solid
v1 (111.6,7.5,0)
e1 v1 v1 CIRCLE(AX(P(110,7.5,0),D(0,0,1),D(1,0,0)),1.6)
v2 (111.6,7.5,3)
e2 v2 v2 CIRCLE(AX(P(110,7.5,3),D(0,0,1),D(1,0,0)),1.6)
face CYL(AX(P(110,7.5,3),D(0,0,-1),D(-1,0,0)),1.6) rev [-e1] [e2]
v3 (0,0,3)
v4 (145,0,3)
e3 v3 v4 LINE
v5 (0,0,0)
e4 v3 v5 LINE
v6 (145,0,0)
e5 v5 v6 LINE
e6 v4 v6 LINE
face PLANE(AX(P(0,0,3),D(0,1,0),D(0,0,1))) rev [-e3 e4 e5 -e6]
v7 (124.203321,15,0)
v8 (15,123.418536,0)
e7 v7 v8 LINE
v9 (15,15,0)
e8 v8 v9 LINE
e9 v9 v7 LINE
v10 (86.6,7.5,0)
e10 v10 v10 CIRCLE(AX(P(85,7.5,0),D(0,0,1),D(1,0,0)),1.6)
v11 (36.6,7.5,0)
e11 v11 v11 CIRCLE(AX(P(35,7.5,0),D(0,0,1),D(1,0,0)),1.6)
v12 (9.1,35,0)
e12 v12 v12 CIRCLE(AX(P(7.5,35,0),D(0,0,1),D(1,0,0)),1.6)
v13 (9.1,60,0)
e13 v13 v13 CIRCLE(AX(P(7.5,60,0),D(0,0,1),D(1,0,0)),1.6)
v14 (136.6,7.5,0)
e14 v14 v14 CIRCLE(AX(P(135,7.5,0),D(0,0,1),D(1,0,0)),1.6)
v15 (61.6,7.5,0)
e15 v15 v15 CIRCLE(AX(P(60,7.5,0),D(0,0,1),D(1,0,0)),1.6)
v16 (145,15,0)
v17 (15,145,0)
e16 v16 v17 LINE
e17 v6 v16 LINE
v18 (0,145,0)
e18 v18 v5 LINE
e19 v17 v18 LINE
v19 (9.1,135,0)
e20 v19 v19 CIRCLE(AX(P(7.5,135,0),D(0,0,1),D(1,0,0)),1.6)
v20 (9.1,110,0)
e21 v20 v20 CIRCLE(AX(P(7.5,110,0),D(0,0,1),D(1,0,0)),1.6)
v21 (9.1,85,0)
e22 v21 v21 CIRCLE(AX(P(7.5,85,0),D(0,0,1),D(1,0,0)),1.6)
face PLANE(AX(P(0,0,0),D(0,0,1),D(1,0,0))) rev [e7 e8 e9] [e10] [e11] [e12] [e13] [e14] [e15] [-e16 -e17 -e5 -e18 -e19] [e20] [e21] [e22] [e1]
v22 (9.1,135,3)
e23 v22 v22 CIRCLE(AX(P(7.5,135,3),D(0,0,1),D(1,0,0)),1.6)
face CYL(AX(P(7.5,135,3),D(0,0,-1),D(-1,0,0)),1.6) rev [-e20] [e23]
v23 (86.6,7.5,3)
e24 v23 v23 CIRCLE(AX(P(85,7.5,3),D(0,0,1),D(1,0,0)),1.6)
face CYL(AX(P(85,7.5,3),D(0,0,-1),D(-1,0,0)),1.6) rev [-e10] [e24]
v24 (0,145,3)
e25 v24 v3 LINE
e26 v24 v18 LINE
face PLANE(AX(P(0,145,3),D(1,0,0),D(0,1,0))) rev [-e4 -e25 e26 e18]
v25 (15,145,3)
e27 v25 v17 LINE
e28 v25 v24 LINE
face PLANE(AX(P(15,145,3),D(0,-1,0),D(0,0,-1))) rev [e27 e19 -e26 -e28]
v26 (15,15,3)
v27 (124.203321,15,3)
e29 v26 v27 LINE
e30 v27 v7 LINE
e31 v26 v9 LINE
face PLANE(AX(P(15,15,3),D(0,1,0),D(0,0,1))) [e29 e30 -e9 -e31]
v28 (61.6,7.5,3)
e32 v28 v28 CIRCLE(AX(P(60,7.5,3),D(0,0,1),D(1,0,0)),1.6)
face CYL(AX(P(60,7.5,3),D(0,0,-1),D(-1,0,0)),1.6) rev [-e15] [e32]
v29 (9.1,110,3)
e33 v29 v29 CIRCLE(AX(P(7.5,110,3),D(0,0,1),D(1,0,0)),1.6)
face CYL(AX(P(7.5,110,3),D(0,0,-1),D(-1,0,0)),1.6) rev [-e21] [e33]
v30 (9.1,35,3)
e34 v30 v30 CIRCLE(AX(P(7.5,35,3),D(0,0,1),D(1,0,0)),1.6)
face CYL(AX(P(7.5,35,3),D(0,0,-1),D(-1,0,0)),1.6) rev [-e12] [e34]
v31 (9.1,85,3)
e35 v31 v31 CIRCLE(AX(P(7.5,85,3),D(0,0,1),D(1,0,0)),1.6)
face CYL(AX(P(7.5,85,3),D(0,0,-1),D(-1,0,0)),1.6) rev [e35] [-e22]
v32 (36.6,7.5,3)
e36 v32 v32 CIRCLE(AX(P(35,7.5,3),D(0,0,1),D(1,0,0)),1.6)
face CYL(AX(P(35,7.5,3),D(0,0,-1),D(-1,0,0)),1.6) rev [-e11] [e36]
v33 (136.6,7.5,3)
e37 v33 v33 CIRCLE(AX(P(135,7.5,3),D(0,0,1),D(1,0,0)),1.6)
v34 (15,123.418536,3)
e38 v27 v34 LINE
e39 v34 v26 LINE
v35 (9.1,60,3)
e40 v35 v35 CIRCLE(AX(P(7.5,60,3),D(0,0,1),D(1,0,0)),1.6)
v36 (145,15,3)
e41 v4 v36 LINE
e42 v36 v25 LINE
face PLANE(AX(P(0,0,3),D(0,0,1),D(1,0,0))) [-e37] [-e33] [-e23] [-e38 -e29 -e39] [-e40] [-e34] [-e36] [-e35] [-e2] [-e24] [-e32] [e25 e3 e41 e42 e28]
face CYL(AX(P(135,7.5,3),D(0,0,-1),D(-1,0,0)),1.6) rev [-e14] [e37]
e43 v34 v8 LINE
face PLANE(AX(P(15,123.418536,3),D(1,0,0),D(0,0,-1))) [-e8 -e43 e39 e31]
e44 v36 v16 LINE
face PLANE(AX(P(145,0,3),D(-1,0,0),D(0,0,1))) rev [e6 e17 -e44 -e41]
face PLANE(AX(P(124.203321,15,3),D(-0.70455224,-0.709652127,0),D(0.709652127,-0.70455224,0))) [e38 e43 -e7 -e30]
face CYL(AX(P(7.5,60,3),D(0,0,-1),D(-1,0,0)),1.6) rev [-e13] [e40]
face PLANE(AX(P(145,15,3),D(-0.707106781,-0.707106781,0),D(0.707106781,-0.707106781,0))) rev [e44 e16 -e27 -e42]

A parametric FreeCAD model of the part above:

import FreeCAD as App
import Part
import Sketcher
Q = App.Units.Quantity


def add_polygon(sketch, points):
    """Adds a closed chain of lines whose ends are joined by coincident constraints."""
    first, n = sketch.GeometryCount, len(points)
    for a, b in zip(points, points[1:] + points[:1]):
        sketch.addGeometry(Part.LineSegment(App.Vector(*a, 0), App.Vector(*b, 0)), False)
    for i in range(n):
        sketch.addConstraint(Sketcher.Constraint("Coincident", first + i, 2, first + (i + 1) % n, 1))

doc = App.newDocument("Part")
params = doc.addObject("Spreadsheet::Sheet", "Params")
for row, (alias, value) in enumerate([
    ("sketch1_diameter", "3.2 mm"),
    ("sketch1_width", "145 mm"),
    ("sketch1_width2", "15 mm"),
    ("pad1_length", "3 mm"),
], start=1):
    params.set(f"A{row}", alias)
    params.set(f"B{row}", "=" + value)
    params.setAlias(f"B{row}", alias)

body = doc.addObject("PartDesign::Body", "Body")

sketch1 = body.newObject("Sketcher::SketchObject", "Sketch")
sketch1.AttachmentSupport = (doc.getObject("XY_Plane"), [""])
sketch1.MapMode = "FlatFace"
add_polygon(sketch1, [(0, 145), (0, 0), (145, 0), (145, 15), (15, 145)])
sketch1.addGeometry(Part.Circle(App.Vector(35, 7.5, 0), App.Vector(0, 0, 1), 1.6), False)
sketch1.addGeometry(Part.Circle(App.Vector(7.5, 35, 0), App.Vector(0, 0, 1), 1.6), False)
sketch1.addGeometry(Part.Circle(App.Vector(60, 7.5, 0), App.Vector(0, 0, 1), 1.6), False)
sketch1.addGeometry(Part.Circle(App.Vector(7.5, 60, 0), App.Vector(0, 0, 1), 1.6), False)
add_polygon(sketch1, [(15, 15), (15, 123.4), (124.2, 15)])
sketch1.addGeometry(Part.Circle(App.Vector(85, 7.5, 0), App.Vector(0, 0, 1), 1.6), False)
sketch1.addGeometry(Part.Circle(App.Vector(110, 7.5, 0), App.Vector(0, 0, 1), 1.6), False)
sketch1.addGeometry(Part.Circle(App.Vector(135, 7.5, 0), App.Vector(0, 0, 1), 1.6), False)
sketch1.addGeometry(Part.Circle(App.Vector(7.5, 85, 0), App.Vector(0, 0, 1), 1.6), False)
sketch1.addGeometry(Part.Circle(App.Vector(7.5, 110, 0), App.Vector(0, 0, 1), 1.6), False)
sketch1.addGeometry(Part.Circle(App.Vector(7.5, 135, 0), App.Vector(0, 0, 1), 1.6), False)
sketch1.addConstraint([
    Sketcher.Constraint("Vertical", 0),
    Sketcher.Constraint("Horizontal", 1),
    Sketcher.Constraint("Vertical", 2),
    Sketcher.Constraint("Horizontal", 4),
    Sketcher.Constraint("Vertical", 9),
    Sketcher.Constraint("Horizontal", 11),
    Sketcher.Constraint("Coincident", 0, 2, -1, 1),
    Sketcher.Constraint("Equal", 5, 6),
    Sketcher.Constraint("Equal", 6, 7),
    Sketcher.Constraint("Equal", 7, 8),
    Sketcher.Constraint("Equal", 8, 12),
    Sketcher.Constraint("Equal", 12, 13),
    Sketcher.Constraint("Equal", 13, 14),
    Sketcher.Constraint("Equal", 14, 15),
    Sketcher.Constraint("Equal", 15, 16),
    Sketcher.Constraint("Equal", 16, 17),
    Sketcher.Constraint("Horizontal", 5, 3, 7, 3),
    Sketcher.Constraint("Horizontal", 7, 3, 12, 3),
    Sketcher.Constraint("Horizontal", 12, 3, 13, 3),
    Sketcher.Constraint("Horizontal", 13, 3, 14, 3),
    Sketcher.Constraint("Horizontal", 2, 2, 10, 2),
    Sketcher.Constraint("Vertical", 6, 3, 8, 3),
    Sketcher.Constraint("Vertical", 8, 3, 15, 3),
    Sketcher.Constraint("Vertical", 15, 3, 16, 3),
    Sketcher.Constraint("Vertical", 16, 3, 17, 3),
    Sketcher.Constraint("Vertical", 3, 2, 9, 2),
    Sketcher.Constraint("Equal", 1, 0),
    Sketcher.Constraint("Equal", 4, 2),
    Sketcher.Constraint("Diameter", 5, Q("3.2 mm")),
    Sketcher.Constraint("DistanceX", 1, 1, 1, 2, Q("145 mm")),
    Sketcher.Constraint("DistanceX", 4, 2, 4, 1, Q("15 mm")),
    Sketcher.Constraint("DistanceX", -1, 1, 5, 3, Q("35 mm")),
    Sketcher.Constraint("DistanceY", -1, 1, 6, 3, Q("35 mm")),
    Sketcher.Constraint("DistanceX", -1, 1, 7, 3, Q("60 mm")),
    Sketcher.Constraint("DistanceY", -1, 1, 8, 3, Q("60 mm")),
    Sketcher.Constraint("DistanceX", -1, 1, 12, 3, Q("85 mm")),
    Sketcher.Constraint("DistanceX", -1, 1, 13, 3, Q("110 mm")),
    Sketcher.Constraint("DistanceX", -1, 1, 14, 3, Q("135 mm")),
    Sketcher.Constraint("DistanceY", -1, 1, 15, 3, Q("85 mm")),
    Sketcher.Constraint("DistanceY", -1, 1, 16, 3, Q("110 mm")),
    Sketcher.Constraint("DistanceY", -1, 1, 17, 3, Q("135 mm")),
    Sketcher.Constraint("DistanceY", -1, 1, 5, 3, Q("7.5 mm")),
    Sketcher.Constraint("DistanceX", -1, 1, 6, 3, Q("7.5 mm")),
    Sketcher.Constraint("DistanceX", 11, 2, 11, 1, Q("109.203321 mm")),
    Sketcher.Constraint("Distance", 10, Q("153.882891 mm")),
])
sketch1.setExpression("Constraints[36]", "Params.sketch1_diameter")
sketch1.setExpression("Constraints[37]", "Params.sketch1_width")
sketch1.setExpression("Constraints[38]", "Params.sketch1_width2")
pad1 = body.newObject("PartDesign::Pad", "Pad")
pad1.Profile = sketch1
pad1.setExpression("Length", "Params.pad1_length")

doc.recompute()
